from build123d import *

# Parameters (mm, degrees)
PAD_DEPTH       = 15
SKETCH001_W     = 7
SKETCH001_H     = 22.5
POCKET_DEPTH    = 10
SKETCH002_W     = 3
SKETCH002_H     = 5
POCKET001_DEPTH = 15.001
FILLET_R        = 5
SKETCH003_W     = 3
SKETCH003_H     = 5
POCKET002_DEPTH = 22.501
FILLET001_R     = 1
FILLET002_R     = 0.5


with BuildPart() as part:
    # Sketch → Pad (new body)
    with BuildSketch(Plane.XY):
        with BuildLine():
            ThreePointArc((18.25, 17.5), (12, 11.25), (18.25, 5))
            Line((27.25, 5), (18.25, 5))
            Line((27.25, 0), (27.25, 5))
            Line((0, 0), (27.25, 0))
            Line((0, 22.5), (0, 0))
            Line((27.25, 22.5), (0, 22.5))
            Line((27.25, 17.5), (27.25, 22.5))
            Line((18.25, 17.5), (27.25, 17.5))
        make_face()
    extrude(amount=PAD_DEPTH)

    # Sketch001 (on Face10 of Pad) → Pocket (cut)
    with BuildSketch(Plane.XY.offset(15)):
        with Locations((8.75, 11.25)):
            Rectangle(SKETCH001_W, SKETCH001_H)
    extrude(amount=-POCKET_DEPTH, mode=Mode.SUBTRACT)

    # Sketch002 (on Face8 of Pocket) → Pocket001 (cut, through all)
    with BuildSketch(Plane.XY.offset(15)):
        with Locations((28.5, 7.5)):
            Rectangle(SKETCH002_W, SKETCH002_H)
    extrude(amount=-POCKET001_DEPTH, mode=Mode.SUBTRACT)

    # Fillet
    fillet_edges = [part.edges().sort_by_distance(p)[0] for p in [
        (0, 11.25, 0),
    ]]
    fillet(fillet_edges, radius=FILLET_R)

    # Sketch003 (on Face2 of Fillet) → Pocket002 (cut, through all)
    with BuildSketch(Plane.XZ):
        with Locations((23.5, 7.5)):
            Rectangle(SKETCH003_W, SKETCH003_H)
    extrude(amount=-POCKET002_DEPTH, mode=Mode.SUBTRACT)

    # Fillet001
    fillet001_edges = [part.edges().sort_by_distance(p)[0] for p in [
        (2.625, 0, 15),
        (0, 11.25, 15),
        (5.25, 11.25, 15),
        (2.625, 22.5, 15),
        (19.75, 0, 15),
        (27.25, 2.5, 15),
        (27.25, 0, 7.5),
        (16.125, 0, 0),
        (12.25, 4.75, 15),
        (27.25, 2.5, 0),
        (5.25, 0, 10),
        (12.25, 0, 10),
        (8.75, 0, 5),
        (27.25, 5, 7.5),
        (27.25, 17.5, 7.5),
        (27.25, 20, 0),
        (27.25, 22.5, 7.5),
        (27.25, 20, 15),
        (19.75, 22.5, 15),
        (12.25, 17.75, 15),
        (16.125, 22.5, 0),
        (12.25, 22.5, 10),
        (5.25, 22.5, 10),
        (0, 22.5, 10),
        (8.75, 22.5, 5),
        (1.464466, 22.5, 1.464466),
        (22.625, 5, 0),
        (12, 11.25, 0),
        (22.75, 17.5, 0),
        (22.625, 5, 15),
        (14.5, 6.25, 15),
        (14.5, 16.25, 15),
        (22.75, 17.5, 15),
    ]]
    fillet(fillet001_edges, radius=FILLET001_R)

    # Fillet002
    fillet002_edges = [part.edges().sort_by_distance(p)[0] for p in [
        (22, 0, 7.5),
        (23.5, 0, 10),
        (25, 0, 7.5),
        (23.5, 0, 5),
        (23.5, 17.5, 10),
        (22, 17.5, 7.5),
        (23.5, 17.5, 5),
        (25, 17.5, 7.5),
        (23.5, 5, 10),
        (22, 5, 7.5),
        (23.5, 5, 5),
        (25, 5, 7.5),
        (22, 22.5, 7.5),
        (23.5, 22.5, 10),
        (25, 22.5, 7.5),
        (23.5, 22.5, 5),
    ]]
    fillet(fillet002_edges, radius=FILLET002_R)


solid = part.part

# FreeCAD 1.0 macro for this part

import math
import FreeCAD as App
import Part
import Sketcher

V = App.Vector


def edges_at(feature, points):
    """Names of the edges that pass closest to the given points."""
    edges = feature.Shape.Edges
    near = lambda p: min(range(len(edges)), key=lambda i: edges[i].distToShape(Part.Vertex(*p))[0])
    return sorted({f"Edge{near(p) + 1}" for p in points})

doc = App.newDocument("Part")
body = doc.addObject("PartDesign::Body", "Body")

sketch1 = doc.addObject("Sketcher::SketchObject", "Sketch")
body.addObject(sketch1)
sketch1.AttachmentSupport = (doc.XY_Plane, [""])
sketch1.MapMode = "FlatFace"
sketch1.addGeometry([
    Part.ArcOfCircle(Part.Circle(V(18, 11, 0), V(0, 0, 1), 6), math.radians(90), math.radians(270)),
    Part.LineSegment(V(18, 18, 0), V(27, 18, 0)),
    Part.LineSegment(V(27, 18, 0), V(27, 22, 0)),
    Part.LineSegment(V(27, 22, 0), V(0, 22, 0)),
    Part.LineSegment(V(0, 22, 0), V(0, 0, 0)),
    Part.LineSegment(V(0, 0, 0), V(27, 0, 0)),
    Part.LineSegment(V(27, 0, 0), V(27, 5, 0)),
    Part.LineSegment(V(27, 5, 0), V(18, 5, 0)),
], False)
sketch1.addConstraint([
    Sketcher.Constraint("Tangent", 0, 1, 1, 1),
    Sketcher.Constraint("Coincident", 1, 2, 2, 1),
    Sketcher.Constraint("Coincident", 2, 2, 3, 1),
    Sketcher.Constraint("Coincident", 3, 2, 4, 1),
    Sketcher.Constraint("Coincident", 4, 2, 5, 1),
    Sketcher.Constraint("Coincident", 5, 2, 6, 1),
    Sketcher.Constraint("Coincident", 6, 2, 7, 1),
    Sketcher.Constraint("Tangent", 7, 2, 0, 2),
    Sketcher.Constraint("Horizontal", 1),
    Sketcher.Constraint("Vertical", 2),
    Sketcher.Constraint("Horizontal", 3),
    Sketcher.Constraint("Vertical", 4),
    Sketcher.Constraint("Horizontal", 5),
    Sketcher.Constraint("Vertical", 6),
    Sketcher.Constraint("Horizontal", 7),
    Sketcher.Constraint("Coincident", 4, 2, -1, 1),
    Sketcher.Constraint("Vertical", 2, 2, 5, 2),
    Sketcher.Constraint("Equal", 2, 6),
    Sketcher.Constraint("DistanceX", 1, 1, 1, 2, 9.0),
    Sketcher.Constraint("DistanceY", 2, 1, 2, 2, 5.0),
    Sketcher.Constraint("Radius", 0, 6.25),
    Sketcher.Constraint("DistanceX", 3, 2, 3, 1, 27.25),
])
pad1 = doc.addObject("PartDesign::Pad", "Pad")
body.addObject(pad1)
pad1.Profile = sketch1
pad1.Length = 15

sketch2 = doc.addObject("Sketcher::SketchObject", "Sketch001")
body.addObject(sketch2)
sketch2.AttachmentSupport = (doc.XY_Plane, [""])
sketch2.MapMode = "FlatFace"
sketch2.AttachmentOffset = App.Placement(V(0, 0, 15), App.Rotation())
sketch2.addGeometry([
    Part.LineSegment(V(5, 22, 0), V(5, 0, 0)),
    Part.LineSegment(V(5, 0, 0), V(12, 0, 0)),
    Part.LineSegment(V(12, 0, 0), V(12, 22, 0)),
    Part.LineSegment(V(12, 22, 0), V(5, 22, 0)),
], False)
sketch2.addConstraint([
    Sketcher.Constraint("Coincident", 0, 2, 1, 1),
    Sketcher.Constraint("Coincident", 1, 2, 2, 1),
    Sketcher.Constraint("Coincident", 2, 2, 3, 1),
    Sketcher.Constraint("Coincident", 3, 2, 0, 1),
    Sketcher.Constraint("Vertical", 0),
    Sketcher.Constraint("Horizontal", 1),
    Sketcher.Constraint("Vertical", 2),
    Sketcher.Constraint("Horizontal", 3),
    Sketcher.Constraint("PointOnObject", 0, 2, -1),
    Sketcher.Constraint("DistanceX", 1, 1, 1, 2, 7.0),
    Sketcher.Constraint("DistanceY", 0, 2, 0, 1, 22.5),
    Sketcher.Constraint("DistanceX", -1, 1, 0, 2, 5.25),
])
pocket1 = doc.addObject("PartDesign::Pocket", "Pocket")
body.addObject(pocket1)
pocket1.Profile = sketch2
pocket1.Length = 10

sketch3 = doc.addObject("Sketcher::SketchObject", "Sketch002")
body.addObject(sketch3)
sketch3.AttachmentSupport = (doc.XY_Plane, [""])
sketch3.MapMode = "FlatFace"
sketch3.AttachmentOffset = App.Placement(V(0, 0, 15), App.Rotation())
sketch3.addGeometry([
    Part.LineSegment(V(27, 10, 0), V(27, 5, 0)),
    Part.LineSegment(V(27, 5, 0), V(30, 5, 0)),
    Part.LineSegment(V(30, 5, 0), V(30, 10, 0)),
    Part.LineSegment(V(30, 10, 0), V(27, 10, 0)),
], False)
sketch3.addConstraint([
    Sketcher.Constraint("Coincident", 0, 2, 1, 1),
    Sketcher.Constraint("Coincident", 1, 2, 2, 1),
    Sketcher.Constraint("Coincident", 2, 2, 3, 1),
    Sketcher.Constraint("Coincident", 3, 2, 0, 1),
    Sketcher.Constraint("Vertical", 0),
    Sketcher.Constraint("Horizontal", 1),
    Sketcher.Constraint("Vertical", 2),
    Sketcher.Constraint("Horizontal", 3),
    Sketcher.Constraint("DistanceX", 1, 1, 1, 2, 3.0),
    Sketcher.Constraint("DistanceY", 0, 2, 0, 1, 5.0),
    Sketcher.Constraint("DistanceX", -1, 1, 0, 2, 27.0),
    Sketcher.Constraint("DistanceY", -1, 1, 0, 2, 5.0),
])
pocket2 = doc.addObject("PartDesign::Pocket", "Pocket001")
body.addObject(pocket2)
pocket2.Profile = sketch3
pocket2.Type = "ThroughAll"
doc.recompute()

fillet = doc.addObject("PartDesign::Fillet", "Fillet")
body.addObject(fillet)
fillet.Base = (pocket2, edges_at(pocket2, [(0, 11.25, 0)]))
fillet.Radius = 5

sketch4 = doc.addObject("Sketcher::SketchObject", "Sketch003")
body.addObject(sketch4)
sketch4.AttachmentSupport = (doc.XZ_Plane, [""])
sketch4.MapMode = "FlatFace"
sketch4.addGeometry([
    Part.LineSegment(V(22, 10, 0), V(22, 5, 0)),
    Part.LineSegment(V(22, 5, 0), V(25, 5, 0)),
    Part.LineSegment(V(25, 5, 0), V(25, 10, 0)),
    Part.LineSegment(V(25, 10, 0), V(22, 10, 0)),
], False)
sketch4.addConstraint([
    Sketcher.Constraint("Coincident", 0, 2, 1, 1),
    Sketcher.Constraint("Coincident", 1, 2, 2, 1),
    Sketcher.Constraint("Coincident", 2, 2, 3, 1),
    Sketcher.Constraint("Coincident", 3, 2, 0, 1),
    Sketcher.Constraint("Vertical", 0),
    Sketcher.Constraint("Horizontal", 1),
    Sketcher.Constraint("Vertical", 2),
    Sketcher.Constraint("Horizontal", 3),
    Sketcher.Constraint("DistanceX", 1, 1, 1, 2, 3.0),
    Sketcher.Constraint("DistanceY", 0, 2, 0, 1, 5.0),
    Sketcher.Constraint("DistanceX", -1, 1, 0, 2, 22.0),
    Sketcher.Constraint("DistanceY", -1, 1, 0, 2, 5.0),
])
pocket3 = doc.addObject("PartDesign::Pocket", "Pocket002")
body.addObject(pocket3)
pocket3.Profile = sketch4
pocket3.Type = "ThroughAll"
doc.recompute()

fillet2 = doc.addObject("PartDesign::Fillet", "Fillet001")
body.addObject(fillet2)
fillet2.Base = (pocket3, edges_at(pocket3, [
    (2.625, 0, 15),
    (0, 11.25, 15),
    (5.25, 11.25, 15),
    (2.625, 22.5, 15),
    (19.75, 0, 15),
    (27.25, 2.5, 15),
    (27.25, 0, 7.5),
    (16.125, 0, 0),
    (12.25, 4.75, 15),
    (27.25, 2.5, 0),
    (5.25, 0, 10),
    (12.25, 0, 10),
    (8.75, 0, 5),
    (27.25, 5, 7.5),
    (27.25, 17.5, 7.5),
    (27.25, 20, 0),
    (27.25, 22.5, 7.5),
    (27.25, 20, 15),
    (19.75, 22.5, 15),
    (12.25, 17.75, 15),
    (16.125, 22.5, 0),
    (12.25, 22.5, 10),
    (5.25, 22.5, 10),
    (0, 22.5, 10),
    (8.75, 22.5, 5),
    (1.464, 22.5, 1.464),
    (22.75, 5, 0),
    (12, 11.25, 0),
    (22.75, 17.5, 0),
    (22.75, 5, 15),
    (14.5, 6.25, 15),
    (14.5, 16.25, 15),
    (22.75, 17.5, 15),
]))
fillet2.Radius = 1
doc.recompute()

fillet3 = doc.addObject("PartDesign::Fillet", "Fillet002")
body.addObject(fillet3)
fillet3.Base = (fillet2, edges_at(fillet2, [
    (22, 0, 7.5),
    (23.5, 0, 10),
    (25, 0, 7.5),
    (23.5, 0, 5),
    (23.5, 17.5, 10),
    (22, 17.5, 7.5),
    (23.5, 17.5, 5),
    (25, 17.5, 7.5),
    (23.5, 5, 10),
    (22, 5, 7.5),
    (23.5, 5, 5),
    (25, 5, 7.5),
    (22, 22.5, 7.5),
    (23.5, 22.5, 10),
    (25, 22.5, 7.5),
    (23.5, 22.5, 5),
]))
fillet3.Radius = 0.5

doc.recompute()
